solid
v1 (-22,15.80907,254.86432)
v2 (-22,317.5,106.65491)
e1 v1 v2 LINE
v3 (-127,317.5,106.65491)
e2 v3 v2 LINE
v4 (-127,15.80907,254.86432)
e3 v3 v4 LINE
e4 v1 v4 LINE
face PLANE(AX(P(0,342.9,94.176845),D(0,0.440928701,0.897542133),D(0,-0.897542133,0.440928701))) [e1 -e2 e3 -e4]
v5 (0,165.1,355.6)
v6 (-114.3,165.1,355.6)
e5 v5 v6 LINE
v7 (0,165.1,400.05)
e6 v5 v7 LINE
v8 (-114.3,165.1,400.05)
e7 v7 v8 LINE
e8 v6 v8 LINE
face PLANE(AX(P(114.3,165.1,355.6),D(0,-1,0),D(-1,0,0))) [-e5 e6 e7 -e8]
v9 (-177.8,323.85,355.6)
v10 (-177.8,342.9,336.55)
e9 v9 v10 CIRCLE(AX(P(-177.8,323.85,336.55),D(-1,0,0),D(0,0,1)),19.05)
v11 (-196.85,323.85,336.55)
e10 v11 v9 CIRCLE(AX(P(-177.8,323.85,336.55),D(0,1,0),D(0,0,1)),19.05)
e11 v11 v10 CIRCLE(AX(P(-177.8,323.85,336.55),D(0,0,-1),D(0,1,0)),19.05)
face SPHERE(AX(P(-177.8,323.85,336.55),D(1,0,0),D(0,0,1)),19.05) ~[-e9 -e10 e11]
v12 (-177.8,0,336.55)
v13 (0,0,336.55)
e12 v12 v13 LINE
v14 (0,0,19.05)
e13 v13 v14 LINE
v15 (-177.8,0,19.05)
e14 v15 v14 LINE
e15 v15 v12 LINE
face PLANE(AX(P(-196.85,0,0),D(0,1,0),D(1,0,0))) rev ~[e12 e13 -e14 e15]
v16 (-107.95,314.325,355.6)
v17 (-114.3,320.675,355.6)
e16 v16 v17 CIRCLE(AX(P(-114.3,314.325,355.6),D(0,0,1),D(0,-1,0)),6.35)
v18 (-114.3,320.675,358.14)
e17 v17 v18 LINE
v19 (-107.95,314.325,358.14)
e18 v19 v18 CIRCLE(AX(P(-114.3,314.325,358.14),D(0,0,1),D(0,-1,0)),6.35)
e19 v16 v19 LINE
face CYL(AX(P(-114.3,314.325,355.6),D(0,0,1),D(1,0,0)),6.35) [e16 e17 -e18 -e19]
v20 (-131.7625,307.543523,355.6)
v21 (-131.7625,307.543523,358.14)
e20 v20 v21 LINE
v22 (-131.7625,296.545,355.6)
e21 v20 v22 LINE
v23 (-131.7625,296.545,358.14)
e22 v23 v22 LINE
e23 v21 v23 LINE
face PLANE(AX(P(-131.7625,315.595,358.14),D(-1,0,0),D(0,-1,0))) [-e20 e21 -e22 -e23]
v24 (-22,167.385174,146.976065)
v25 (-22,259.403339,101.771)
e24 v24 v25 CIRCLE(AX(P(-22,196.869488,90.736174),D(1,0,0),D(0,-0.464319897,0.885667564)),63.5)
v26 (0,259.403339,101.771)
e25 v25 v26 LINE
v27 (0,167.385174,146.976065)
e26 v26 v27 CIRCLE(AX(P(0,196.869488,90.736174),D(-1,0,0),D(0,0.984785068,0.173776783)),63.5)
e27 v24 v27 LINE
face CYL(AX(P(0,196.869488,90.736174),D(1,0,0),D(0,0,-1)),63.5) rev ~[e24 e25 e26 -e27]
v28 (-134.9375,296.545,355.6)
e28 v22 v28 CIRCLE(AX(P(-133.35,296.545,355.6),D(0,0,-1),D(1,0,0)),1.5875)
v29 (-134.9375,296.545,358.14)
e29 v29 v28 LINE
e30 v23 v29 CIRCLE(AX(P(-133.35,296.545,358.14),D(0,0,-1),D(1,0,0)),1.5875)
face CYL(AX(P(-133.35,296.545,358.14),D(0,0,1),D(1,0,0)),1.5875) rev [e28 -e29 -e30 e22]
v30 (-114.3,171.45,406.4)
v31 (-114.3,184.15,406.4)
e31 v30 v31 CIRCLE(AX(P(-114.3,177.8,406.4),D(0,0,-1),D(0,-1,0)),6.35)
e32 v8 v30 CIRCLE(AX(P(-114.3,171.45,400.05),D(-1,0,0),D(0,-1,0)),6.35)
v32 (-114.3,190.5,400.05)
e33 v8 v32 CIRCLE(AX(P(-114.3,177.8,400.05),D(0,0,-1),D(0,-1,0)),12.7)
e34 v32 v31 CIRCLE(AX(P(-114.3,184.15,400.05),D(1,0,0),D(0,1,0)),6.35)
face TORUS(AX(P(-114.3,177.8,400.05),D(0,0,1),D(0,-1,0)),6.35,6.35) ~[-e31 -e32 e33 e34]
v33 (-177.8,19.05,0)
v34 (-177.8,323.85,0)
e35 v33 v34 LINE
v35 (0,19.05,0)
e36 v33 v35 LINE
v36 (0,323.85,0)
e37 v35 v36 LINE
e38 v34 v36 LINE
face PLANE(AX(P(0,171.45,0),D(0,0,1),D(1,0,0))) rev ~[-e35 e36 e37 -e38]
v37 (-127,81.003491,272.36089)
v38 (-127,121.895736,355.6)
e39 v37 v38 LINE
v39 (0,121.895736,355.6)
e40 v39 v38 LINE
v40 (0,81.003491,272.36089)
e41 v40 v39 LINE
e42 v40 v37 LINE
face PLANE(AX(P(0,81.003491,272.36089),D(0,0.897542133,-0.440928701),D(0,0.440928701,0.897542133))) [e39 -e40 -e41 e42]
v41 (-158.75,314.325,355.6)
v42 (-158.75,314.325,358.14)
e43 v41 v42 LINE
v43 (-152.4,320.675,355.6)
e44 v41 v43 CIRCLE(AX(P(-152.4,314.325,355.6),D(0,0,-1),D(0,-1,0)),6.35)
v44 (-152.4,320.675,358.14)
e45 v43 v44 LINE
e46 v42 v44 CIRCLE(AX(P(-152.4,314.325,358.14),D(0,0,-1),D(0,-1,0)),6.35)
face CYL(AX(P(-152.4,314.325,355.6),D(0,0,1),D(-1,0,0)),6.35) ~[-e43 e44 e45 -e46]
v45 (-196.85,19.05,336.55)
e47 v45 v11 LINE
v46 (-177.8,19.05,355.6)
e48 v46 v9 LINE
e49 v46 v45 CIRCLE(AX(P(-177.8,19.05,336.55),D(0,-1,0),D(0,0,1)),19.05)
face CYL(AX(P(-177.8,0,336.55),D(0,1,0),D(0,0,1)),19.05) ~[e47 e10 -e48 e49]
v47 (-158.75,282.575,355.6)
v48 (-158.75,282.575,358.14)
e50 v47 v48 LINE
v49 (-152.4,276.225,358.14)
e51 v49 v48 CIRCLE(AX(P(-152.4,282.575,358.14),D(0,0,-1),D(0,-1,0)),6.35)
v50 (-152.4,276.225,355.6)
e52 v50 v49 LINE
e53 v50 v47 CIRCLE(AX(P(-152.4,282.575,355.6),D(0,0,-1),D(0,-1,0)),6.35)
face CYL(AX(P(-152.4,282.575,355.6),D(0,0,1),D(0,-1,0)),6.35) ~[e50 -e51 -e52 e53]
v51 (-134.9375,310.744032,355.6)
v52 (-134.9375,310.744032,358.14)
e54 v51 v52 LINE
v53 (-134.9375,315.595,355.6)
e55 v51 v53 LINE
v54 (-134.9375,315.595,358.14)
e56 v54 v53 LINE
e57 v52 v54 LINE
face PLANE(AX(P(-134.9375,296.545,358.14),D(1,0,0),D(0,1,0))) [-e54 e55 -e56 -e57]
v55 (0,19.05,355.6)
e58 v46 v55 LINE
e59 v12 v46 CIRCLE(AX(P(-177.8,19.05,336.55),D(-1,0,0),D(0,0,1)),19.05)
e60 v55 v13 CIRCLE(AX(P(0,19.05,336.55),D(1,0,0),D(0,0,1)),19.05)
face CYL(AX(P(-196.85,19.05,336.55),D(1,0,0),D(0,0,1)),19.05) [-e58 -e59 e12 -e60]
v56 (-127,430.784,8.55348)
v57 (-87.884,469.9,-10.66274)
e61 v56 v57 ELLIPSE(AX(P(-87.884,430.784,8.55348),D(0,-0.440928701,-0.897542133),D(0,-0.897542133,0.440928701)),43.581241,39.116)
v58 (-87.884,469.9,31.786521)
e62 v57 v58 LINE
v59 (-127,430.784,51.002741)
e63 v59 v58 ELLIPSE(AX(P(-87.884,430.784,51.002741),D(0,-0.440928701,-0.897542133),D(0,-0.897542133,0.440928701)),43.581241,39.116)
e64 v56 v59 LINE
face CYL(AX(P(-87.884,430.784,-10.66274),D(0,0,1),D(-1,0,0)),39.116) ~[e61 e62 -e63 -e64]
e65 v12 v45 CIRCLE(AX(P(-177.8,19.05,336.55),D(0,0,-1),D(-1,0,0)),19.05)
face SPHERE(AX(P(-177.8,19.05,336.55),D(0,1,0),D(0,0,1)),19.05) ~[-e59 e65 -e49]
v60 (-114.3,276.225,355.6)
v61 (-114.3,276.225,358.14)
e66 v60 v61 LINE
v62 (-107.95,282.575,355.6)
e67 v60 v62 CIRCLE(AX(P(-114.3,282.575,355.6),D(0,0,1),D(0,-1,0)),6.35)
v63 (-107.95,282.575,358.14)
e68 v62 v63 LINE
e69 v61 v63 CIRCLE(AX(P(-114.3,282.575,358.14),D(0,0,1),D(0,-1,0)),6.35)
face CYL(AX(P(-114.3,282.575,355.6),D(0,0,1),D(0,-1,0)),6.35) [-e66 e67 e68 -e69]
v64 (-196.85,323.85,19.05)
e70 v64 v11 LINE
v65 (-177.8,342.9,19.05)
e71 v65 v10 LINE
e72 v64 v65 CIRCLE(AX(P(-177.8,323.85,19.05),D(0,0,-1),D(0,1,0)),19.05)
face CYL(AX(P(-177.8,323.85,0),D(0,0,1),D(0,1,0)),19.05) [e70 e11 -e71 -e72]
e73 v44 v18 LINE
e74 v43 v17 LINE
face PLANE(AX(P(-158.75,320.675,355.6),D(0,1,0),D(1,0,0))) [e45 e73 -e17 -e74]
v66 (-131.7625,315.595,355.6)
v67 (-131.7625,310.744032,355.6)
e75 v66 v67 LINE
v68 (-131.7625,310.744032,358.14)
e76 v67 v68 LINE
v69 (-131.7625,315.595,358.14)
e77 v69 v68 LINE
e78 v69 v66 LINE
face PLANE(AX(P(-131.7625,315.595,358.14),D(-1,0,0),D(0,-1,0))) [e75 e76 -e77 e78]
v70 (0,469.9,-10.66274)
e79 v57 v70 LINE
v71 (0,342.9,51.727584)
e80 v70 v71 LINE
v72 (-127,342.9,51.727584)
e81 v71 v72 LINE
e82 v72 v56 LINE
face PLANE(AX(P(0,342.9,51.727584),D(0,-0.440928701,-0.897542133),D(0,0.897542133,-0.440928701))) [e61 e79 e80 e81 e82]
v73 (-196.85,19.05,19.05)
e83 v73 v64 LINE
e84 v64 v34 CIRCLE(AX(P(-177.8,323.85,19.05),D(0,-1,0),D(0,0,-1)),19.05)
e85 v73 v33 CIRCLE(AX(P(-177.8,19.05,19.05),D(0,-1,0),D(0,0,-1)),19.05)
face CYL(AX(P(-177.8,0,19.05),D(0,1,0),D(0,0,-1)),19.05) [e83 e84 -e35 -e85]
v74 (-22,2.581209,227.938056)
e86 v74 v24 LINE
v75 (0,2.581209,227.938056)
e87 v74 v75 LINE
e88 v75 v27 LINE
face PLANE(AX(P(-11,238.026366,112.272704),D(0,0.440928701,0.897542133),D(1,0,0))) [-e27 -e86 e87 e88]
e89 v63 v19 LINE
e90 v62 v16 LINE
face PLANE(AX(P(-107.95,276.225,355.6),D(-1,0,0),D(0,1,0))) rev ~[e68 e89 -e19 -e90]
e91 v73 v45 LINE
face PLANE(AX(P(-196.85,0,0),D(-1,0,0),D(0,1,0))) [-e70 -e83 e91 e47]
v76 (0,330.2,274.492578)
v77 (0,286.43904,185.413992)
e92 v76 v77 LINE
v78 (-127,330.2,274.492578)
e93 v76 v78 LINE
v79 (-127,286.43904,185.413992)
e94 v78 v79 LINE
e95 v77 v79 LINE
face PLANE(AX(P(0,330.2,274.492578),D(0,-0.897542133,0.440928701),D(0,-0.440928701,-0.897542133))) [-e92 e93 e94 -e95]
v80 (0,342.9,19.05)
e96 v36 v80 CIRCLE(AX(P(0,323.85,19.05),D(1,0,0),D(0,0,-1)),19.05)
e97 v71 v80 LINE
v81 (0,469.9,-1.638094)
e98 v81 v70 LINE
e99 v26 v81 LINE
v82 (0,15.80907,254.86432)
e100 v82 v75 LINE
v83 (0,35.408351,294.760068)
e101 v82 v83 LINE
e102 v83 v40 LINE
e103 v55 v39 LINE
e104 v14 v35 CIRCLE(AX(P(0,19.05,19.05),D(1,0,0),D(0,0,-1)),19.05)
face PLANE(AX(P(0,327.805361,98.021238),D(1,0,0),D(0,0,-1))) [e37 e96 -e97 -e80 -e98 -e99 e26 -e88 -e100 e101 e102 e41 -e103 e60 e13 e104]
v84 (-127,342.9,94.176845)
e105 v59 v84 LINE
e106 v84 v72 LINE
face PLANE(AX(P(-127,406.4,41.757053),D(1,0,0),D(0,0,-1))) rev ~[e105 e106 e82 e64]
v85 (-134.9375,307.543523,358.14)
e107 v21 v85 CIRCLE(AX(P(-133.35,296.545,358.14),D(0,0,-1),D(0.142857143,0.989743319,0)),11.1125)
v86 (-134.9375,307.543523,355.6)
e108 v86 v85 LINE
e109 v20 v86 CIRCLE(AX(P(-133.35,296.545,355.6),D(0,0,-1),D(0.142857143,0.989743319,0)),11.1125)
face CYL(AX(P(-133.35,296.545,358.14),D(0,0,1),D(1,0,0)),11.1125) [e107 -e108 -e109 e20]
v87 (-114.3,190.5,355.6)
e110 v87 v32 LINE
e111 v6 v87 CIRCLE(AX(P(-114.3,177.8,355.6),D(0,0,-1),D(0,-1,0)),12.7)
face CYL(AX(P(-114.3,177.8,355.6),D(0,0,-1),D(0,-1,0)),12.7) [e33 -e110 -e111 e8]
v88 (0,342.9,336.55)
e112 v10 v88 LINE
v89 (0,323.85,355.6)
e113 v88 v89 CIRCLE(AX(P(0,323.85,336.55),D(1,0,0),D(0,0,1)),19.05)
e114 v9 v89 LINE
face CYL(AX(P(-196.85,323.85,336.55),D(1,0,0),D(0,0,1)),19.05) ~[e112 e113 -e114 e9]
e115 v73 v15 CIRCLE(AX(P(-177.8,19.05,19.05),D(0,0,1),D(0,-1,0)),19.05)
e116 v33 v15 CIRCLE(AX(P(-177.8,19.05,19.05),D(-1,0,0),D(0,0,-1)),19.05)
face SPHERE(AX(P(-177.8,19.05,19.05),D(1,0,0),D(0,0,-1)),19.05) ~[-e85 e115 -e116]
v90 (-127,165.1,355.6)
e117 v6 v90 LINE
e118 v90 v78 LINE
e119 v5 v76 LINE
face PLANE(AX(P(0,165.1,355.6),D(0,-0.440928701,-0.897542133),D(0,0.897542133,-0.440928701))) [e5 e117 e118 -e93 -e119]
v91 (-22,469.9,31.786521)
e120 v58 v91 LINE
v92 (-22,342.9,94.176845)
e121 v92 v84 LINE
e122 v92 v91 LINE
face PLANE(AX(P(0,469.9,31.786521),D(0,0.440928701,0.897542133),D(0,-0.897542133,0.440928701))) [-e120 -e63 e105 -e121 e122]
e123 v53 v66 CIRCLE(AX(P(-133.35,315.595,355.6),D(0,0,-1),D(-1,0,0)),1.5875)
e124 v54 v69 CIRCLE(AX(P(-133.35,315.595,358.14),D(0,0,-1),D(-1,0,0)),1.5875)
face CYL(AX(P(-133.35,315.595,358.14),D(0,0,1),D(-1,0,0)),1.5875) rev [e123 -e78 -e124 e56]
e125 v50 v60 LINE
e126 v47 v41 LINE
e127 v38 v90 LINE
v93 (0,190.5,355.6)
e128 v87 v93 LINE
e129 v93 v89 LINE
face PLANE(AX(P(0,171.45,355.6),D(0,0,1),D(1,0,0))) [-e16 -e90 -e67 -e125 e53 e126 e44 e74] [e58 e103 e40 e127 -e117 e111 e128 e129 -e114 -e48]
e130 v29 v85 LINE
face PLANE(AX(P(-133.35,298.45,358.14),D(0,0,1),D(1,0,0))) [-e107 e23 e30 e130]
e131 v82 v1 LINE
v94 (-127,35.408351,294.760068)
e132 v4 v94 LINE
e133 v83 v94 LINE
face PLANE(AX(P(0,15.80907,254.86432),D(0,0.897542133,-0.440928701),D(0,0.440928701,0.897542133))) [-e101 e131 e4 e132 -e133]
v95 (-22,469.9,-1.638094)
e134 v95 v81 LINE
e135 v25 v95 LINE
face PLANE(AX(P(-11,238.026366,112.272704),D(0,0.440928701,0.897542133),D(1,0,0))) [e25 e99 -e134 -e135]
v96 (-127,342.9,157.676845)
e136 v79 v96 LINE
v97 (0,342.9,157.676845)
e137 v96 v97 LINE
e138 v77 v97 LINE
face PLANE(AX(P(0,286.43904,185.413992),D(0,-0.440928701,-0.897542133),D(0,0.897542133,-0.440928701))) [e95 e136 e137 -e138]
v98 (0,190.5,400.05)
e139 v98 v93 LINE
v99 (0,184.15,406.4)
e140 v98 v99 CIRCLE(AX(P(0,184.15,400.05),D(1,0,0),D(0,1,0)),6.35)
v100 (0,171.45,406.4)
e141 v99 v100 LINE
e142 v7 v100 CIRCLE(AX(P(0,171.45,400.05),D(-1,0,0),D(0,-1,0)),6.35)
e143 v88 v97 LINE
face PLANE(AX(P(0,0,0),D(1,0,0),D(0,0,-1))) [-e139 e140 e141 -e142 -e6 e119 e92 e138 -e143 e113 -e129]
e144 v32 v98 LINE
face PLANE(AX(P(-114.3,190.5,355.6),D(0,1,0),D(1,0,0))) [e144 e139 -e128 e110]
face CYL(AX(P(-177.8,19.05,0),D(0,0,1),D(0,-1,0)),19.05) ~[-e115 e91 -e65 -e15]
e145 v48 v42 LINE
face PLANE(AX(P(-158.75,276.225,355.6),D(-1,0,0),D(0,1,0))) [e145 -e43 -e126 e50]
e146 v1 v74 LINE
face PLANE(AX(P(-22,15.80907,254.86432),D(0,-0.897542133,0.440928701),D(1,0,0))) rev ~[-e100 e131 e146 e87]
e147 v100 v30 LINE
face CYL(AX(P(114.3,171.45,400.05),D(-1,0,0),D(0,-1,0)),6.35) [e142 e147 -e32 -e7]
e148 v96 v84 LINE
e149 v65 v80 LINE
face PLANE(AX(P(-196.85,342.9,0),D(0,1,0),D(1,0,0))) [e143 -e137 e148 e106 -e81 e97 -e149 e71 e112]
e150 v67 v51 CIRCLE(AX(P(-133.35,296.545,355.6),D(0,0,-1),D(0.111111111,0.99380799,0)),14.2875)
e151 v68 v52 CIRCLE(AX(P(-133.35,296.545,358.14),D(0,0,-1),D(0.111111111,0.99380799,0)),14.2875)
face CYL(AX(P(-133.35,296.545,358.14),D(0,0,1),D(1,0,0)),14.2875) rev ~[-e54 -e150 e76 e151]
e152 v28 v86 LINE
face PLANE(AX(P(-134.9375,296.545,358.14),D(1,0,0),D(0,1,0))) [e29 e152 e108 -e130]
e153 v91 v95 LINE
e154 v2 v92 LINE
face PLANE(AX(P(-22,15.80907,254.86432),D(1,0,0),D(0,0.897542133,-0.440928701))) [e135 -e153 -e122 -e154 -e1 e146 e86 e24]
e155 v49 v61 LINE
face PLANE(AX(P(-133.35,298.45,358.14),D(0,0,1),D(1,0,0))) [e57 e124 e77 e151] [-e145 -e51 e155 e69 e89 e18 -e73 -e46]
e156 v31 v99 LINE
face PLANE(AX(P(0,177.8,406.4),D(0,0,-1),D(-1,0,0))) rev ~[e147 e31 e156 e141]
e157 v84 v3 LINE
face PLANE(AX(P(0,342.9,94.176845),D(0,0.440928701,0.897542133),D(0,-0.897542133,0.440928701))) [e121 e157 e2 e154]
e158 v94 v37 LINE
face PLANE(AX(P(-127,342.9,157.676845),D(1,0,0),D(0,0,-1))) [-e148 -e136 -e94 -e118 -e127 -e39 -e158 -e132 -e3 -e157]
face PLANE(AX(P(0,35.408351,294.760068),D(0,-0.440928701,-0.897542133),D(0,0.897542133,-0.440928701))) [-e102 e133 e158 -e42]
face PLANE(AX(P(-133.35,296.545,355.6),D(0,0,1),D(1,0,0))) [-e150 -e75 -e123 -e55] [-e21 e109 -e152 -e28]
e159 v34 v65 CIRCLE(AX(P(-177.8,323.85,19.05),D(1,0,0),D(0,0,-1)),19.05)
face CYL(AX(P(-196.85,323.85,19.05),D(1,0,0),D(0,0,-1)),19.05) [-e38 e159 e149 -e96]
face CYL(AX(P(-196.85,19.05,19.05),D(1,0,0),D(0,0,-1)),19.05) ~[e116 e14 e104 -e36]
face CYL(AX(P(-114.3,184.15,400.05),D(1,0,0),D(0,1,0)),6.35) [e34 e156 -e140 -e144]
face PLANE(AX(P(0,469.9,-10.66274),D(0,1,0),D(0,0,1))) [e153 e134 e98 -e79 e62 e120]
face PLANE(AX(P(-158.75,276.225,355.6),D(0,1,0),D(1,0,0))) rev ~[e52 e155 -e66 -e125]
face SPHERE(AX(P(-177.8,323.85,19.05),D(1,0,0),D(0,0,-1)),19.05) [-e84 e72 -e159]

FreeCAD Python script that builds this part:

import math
import FreeCAD as App
import Part
import Sketcher
Q = App.Units.Quantity


def edges_at(feature, points):
    """Names of the edges that pass closest to the given points."""
    edges = feature.Shape.Edges
    near = lambda p: min(range(len(edges)), key=lambda i: edges[i].distToShape(Part.Vertex(*p))[0])
    return sorted({f"Edge{near(p) + 1}" for p in points})

doc = App.newDocument("Part")
body = doc.addObject("PartDesign::Body", "Body")

# Sketch on XY plane
sketch1 = body.newObject("Sketcher::SketchObject", "Sketch")
sketch1.AttachmentSupport = (doc.getObject("XY_Plane"), [""])
sketch1.MapMode = "FlatFace"
sketch1.addGeometry(Part.LineSegment(App.Vector(-196.85, 342.9, 0), App.Vector(-196.85, 0, 0)), False)
sketch1.addGeometry(Part.LineSegment(App.Vector(-196.85, 0, 0), App.Vector(196.85, 0, 0)), False)
sketch1.addGeometry(Part.LineSegment(App.Vector(196.85, 0, 0), App.Vector(196.85, 342.9, 0)), False)
sketch1.addGeometry(Part.LineSegment(App.Vector(196.85, 342.9, 0), App.Vector(-196.85, 342.9, 0)), False)
sketch1.addConstraint(Sketcher.Constraint("Coincident", 0, 2, 1, 1))
sketch1.addConstraint(Sketcher.Constraint("Coincident", 1, 2, 2, 1))
sketch1.addConstraint(Sketcher.Constraint("Coincident", 2, 2, 3, 1))
sketch1.addConstraint(Sketcher.Constraint("Coincident", 3, 2, 0, 1))
sketch1.addConstraint(Sketcher.Constraint("Vertical", 0))
sketch1.addConstraint(Sketcher.Constraint("Horizontal", 1))
sketch1.addConstraint(Sketcher.Constraint("Vertical", 2))
sketch1.addConstraint(Sketcher.Constraint("Horizontal", 3))
sketch1.addConstraint(Sketcher.Constraint("Symmetric", 0, 2, 1, 2, -1, 1))
sketch1.addConstraint(Sketcher.Constraint("DistanceX", 1, 1, 1, 2, Q("15.5 in")))
sketch1.addConstraint(Sketcher.Constraint("DistanceY", 0, 2, 0, 1, Q("13.5 in")))
pad1 = body.newObject("PartDesign::Pad", "Pad")
pad1.Profile = sketch1
pad1.Length = Q("14 in")

# Sketch on XY plane
sketch2 = body.newObject("Sketcher::SketchObject", "Sketch001")
sketch2.AttachmentSupport = (doc.getObject("XY_Plane"), [""])
sketch2.MapMode = "FlatFace"
sketch2.AttachmentOffset = App.Placement(App.Vector(0, 0, 14 * 25.4), App.Rotation())
sketch2.addGeometry(Part.LineSegment(App.Vector(-158.75, 320.675, 0), App.Vector(-158.75, 276.225, 0)), False)
sketch2.addGeometry(Part.LineSegment(App.Vector(-158.75, 276.225, 0), App.Vector(-107.95, 276.225, 0)), False)
sketch2.addGeometry(Part.LineSegment(App.Vector(-107.95, 276.225, 0), App.Vector(-107.95, 320.675, 0)), False)
sketch2.addGeometry(Part.LineSegment(App.Vector(-107.95, 320.675, 0), App.Vector(-158.75, 320.675, 0)), False)
sketch2.addConstraint(Sketcher.Constraint("Coincident", 0, 2, 1, 1))
sketch2.addConstraint(Sketcher.Constraint("Coincident", 1, 2, 2, 1))
sketch2.addConstraint(Sketcher.Constraint("Coincident", 2, 2, 3, 1))
sketch2.addConstraint(Sketcher.Constraint("Coincident", 3, 2, 0, 1))
sketch2.addConstraint(Sketcher.Constraint("Vertical", 0))
sketch2.addConstraint(Sketcher.Constraint("Horizontal", 1))
sketch2.addConstraint(Sketcher.Constraint("Vertical", 2))
sketch2.addConstraint(Sketcher.Constraint("Horizontal", 3))
sketch2.addConstraint(Sketcher.Constraint("DistanceX", 1, 1, 1, 2, Q("2 in")))
sketch2.addConstraint(Sketcher.Constraint("DistanceY", 0, 2, 0, 1, Q("1.75 in")))
sketch2.addConstraint(Sketcher.Constraint("DistanceX", 0, 2, -1, 1, Q("6.25 in")))
sketch2.addConstraint(Sketcher.Constraint("DistanceY", -1, 1, 0, 2, Q("10.875 in")))
pad2 = body.newObject("PartDesign::Pad", "Pad001")
pad2.Profile = sketch2
pad2.Length = Q("0.1 in")

# Sketch on XY plane
sketch3 = body.newObject("Sketcher::SketchObject", "Sketch002")
sketch3.AttachmentSupport = (doc.getObject("XY_Plane"), [""])
sketch3.MapMode = "FlatFace"
sketch3.AttachmentOffset = App.Placement(App.Vector(0, 0, 14 * 25.4), App.Rotation())
sketch3.addGeometry(Part.LineSegment(App.Vector(165.1, 307.975, 0), App.Vector(88.9, 307.975, 0)), False)
sketch3.addGeometry(Part.ArcOfCircle(Part.Circle(App.Vector(88.9, 298.45, 0), App.Vector(0, 0, 1), 9.525), math.radians(90), math.radians(270)), False)
sketch3.addGeometry(Part.LineSegment(App.Vector(88.9, 288.925, 0), App.Vector(165.1, 288.925, 0)), False)
sketch3.addGeometry(Part.ArcOfCircle(Part.Circle(App.Vector(165.1, 298.45, 0), App.Vector(0, 0, 1), 9.525), math.radians(-90), math.radians(90)), False)
sketch3.addConstraint(Sketcher.Constraint("Tangent", 0, 2, 1, 1))
sketch3.addConstraint(Sketcher.Constraint("Tangent", 1, 2, 2, 1))
sketch3.addConstraint(Sketcher.Constraint("Tangent", 2, 2, 3, 1))
sketch3.addConstraint(Sketcher.Constraint("Tangent", 3, 2, 0, 1))
sketch3.addConstraint(Sketcher.Constraint("Horizontal", 0))
sketch3.addConstraint(Sketcher.Constraint("Horizontal", 2))
sketch3.addConstraint(Sketcher.Constraint("DistanceX", 0, 2, 0, 1, Q("3 in")))
sketch3.addConstraint(Sketcher.Constraint("Radius", 1, Q("0.375 in")))
sketch3.addConstraint(Sketcher.Constraint("DistanceX", -1, 1, 1, 3, Q("3.5 in")))
sketch3.addConstraint(Sketcher.Constraint("DistanceY", -1, 1, 1, 3, Q("11.75 in")))
pad3 = body.newObject("PartDesign::Pad", "Pad002")
pad3.Profile = sketch3
pad3.Length = Q("0.1 in")

# Sketch on XY plane
sketch4 = body.newObject("Sketcher::SketchObject", "Sketch003")
sketch4.AttachmentSupport = (doc.getObject("XY_Plane"), [""])
sketch4.MapMode = "FlatFace"
sketch4.AttachmentOffset = App.Placement(App.Vector(0, 0, 14.1 * 25.4), App.Rotation())
sketch4.addGeometry(Part.Circle(App.Vector(92.075, 298.45, 0), App.Vector(0, 0, 1), 3.81), False)
sketch4.addGeometry(Part.Circle(App.Vector(108.286468, 298.45, 0), App.Vector(0, 0, 1), 3.81), False)
sketch4.addGeometry(Part.Circle(App.Vector(124.497935, 298.45, 0), App.Vector(0, 0, 1), 3.81), False)
sketch4.addConstraint(Sketcher.Constraint("Equal", 0, 1))
sketch4.addConstraint(Sketcher.Constraint("Equal", 1, 2))
sketch4.addConstraint(Sketcher.Constraint("Horizontal", 0, 3, 1, 3))
sketch4.addConstraint(Sketcher.Constraint("Horizontal", 1, 3, 2, 3))
sketch4.addConstraint(Sketcher.Constraint("Diameter", 0, Q("0.3 in")))
sketch4.addConstraint(Sketcher.Constraint("DistanceY", -1, 1, 0, 3, Q("11.75 in")))
sketch4.addConstraint(Sketcher.Constraint("DistanceX", -1, 1, 0, 3, Q("3.625 in")))
sketch4.addConstraint(Sketcher.Constraint("DistanceX", -1, 1, 1, 3, Q("108.286468 mm")))
sketch4.addConstraint(Sketcher.Constraint("DistanceX", -1, 1, 2, 3, Q("124.497935 mm")))
pocket1 = body.newObject("PartDesign::Pocket", "Pocket")
pocket1.Profile = sketch4
pocket1.Length = Q("0.1 in")

# Sketch on XY plane
sketch5 = body.newObject("Sketcher::SketchObject", "Sketch004")
sketch5.AttachmentSupport = (doc.getObject("XY_Plane"), [""])
sketch5.MapMode = "FlatFace"
sketch5.AttachmentOffset = App.Placement(App.Vector(0, 0, 14 * 25.4), App.Rotation())
sketch5.addGeometry(Part.LineSegment(App.Vector(114.3, 190.5, 0), App.Vector(-114.3, 190.5, 0)), False)
sketch5.addGeometry(Part.ArcOfCircle(Part.Circle(App.Vector(-114.3, 177.8, 0), App.Vector(0, 0, 1), 12.7), math.radians(90), math.radians(270)), False)
sketch5.addGeometry(Part.LineSegment(App.Vector(-114.3, 165.1, 0), App.Vector(114.3, 165.1, 0)), False)
sketch5.addGeometry(Part.ArcOfCircle(Part.Circle(App.Vector(114.3, 177.8, 0), App.Vector(0, 0, 1), 12.7), math.radians(-90), math.radians(90)), False)
sketch5.addConstraint(Sketcher.Constraint("Tangent", 0, 2, 1, 1))
sketch5.addConstraint(Sketcher.Constraint("Tangent", 1, 2, 2, 1))
sketch5.addConstraint(Sketcher.Constraint("Tangent", 2, 2, 3, 1))
sketch5.addConstraint(Sketcher.Constraint("Tangent", 3, 2, 0, 1))
sketch5.addConstraint(Sketcher.Constraint("Horizontal", 0))
sketch5.addConstraint(Sketcher.Constraint("Horizontal", 2))
sketch5.addConstraint(Sketcher.Constraint("Radius", 1, Q("0.5 in")))
sketch5.addConstraint(Sketcher.Constraint("DistanceX", 0, 2, 0, 1, Q("9 in")))
sketch5.addConstraint(Sketcher.Constraint("DistanceY", -1, 1, 1, 3, Q("7 in")))
sketch5.addConstraint(Sketcher.Constraint("DistanceX", 1, 3, -1, 1, Q("4.5 in")))
pad4 = body.newObject("PartDesign::Pad", "Pad003")
pad4.Profile = sketch5
pad4.Length = Q("2 in")
doc.recompute()

fillet = body.newObject("PartDesign::Fillet", "Fillet")
fillet.Base = (pad4, edges_at(pad4, [
    (-127, 177.8, 406.4),
    (0, 165.1, 406.4),
    (127, 177.8, 406.4),
    (0, 190.5, 406.4),
]))
fillet.Radius = Q("0.25 in")
doc.recompute()

fillet2 = body.newObject("PartDesign::Fillet", "Fillet001")
fillet2.Base = (fillet, edges_at(fillet, [
    (-107.95, 276.225, 356.87),
    (-107.95, 320.675, 356.87),
    (-158.75, 320.675, 356.87),
    (-158.75, 276.225, 356.87),
]))
fillet2.Radius = Q("0.25 in")

# Sketch on XY plane
sketch6 = body.newObject("Sketcher::SketchObject", "Sketch005")
sketch6.AttachmentSupport = (doc.getObject("XY_Plane"), [""])
sketch6.MapMode = "FlatFace"
sketch6.AttachmentOffset = App.Placement(App.Vector(0, 0, 14.1 * 25.4), App.Rotation())
sketch6.addGeometry(Part.ArcOfCircle(Part.Circle(App.Vector(-133.35, 296.545, 0), App.Vector(0, 0, 1), 14.2875), math.radians(96.37937), math.radians(443.62063)), False)
sketch6.addGeometry(Part.LineSegment(App.Vector(-131.7625, 310.744032, 0), App.Vector(-131.7625, 315.595, 0)), False)
sketch6.addGeometry(Part.ArcOfCircle(Part.Circle(App.Vector(-133.35, 315.595, 0), App.Vector(0, 0, 1), 1.5875), math.radians(0), math.radians(180)), False)
sketch6.addGeometry(Part.LineSegment(App.Vector(-134.9375, 315.595, 0), App.Vector(-134.9375, 310.744032, 0)), False)
sketch6.addGeometry(Part.LineSegment(App.Vector(-134.9375, 307.543523, 0), App.Vector(-134.9375, 296.545, 0)), False)
sketch6.addGeometry(Part.ArcOfCircle(Part.Circle(App.Vector(-133.35, 296.545, 0), App.Vector(0, 0, 1), 1.5875), math.radians(180), math.radians(360)), False)
sketch6.addGeometry(Part.LineSegment(App.Vector(-131.7625, 296.545, 0), App.Vector(-131.7625, 307.543523, 0)), False)
sketch6.addGeometry(Part.ArcOfCircle(Part.Circle(App.Vector(-133.35, 296.545, 0), App.Vector(0, 0, 1), 11.1125), math.radians(98.213211), math.radians(441.786789)), False)
sketch6.addConstraint(Sketcher.Constraint("Coincident", 0, 2, 1, 1))
sketch6.addConstraint(Sketcher.Constraint("Tangent", 1, 2, 2, 1))
sketch6.addConstraint(Sketcher.Constraint("Tangent", 2, 2, 3, 1))
sketch6.addConstraint(Sketcher.Constraint("Coincident", 3, 2, 0, 1))
sketch6.addConstraint(Sketcher.Constraint("Tangent", 4, 2, 5, 1))
sketch6.addConstraint(Sketcher.Constraint("Tangent", 5, 2, 6, 1))
sketch6.addConstraint(Sketcher.Constraint("Coincident", 6, 2, 7, 2))
sketch6.addConstraint(Sketcher.Constraint("Coincident", 7, 1, 4, 1))
sketch6.addConstraint(Sketcher.Constraint("Vertical", 1))
sketch6.addConstraint(Sketcher.Constraint("Vertical", 3))
sketch6.addConstraint(Sketcher.Constraint("Vertical", 4))
sketch6.addConstraint(Sketcher.Constraint("Vertical", 6))
sketch6.addConstraint(Sketcher.Constraint("Coincident", 5, 3, 0, 3))
sketch6.addConstraint(Sketcher.Constraint("Coincident", 7, 3, 0, 3))
sketch6.addConstraint(Sketcher.Constraint("Equal", 2, 5))
sketch6.addConstraint(Sketcher.Constraint("Horizontal", 0, 2, 3, 2))
sketch6.addConstraint(Sketcher.Constraint("Radius", 0, Q("0.5625 in")))
sketch6.addConstraint(Sketcher.Constraint("Radius", 2, Q("0.0625 in")))
sketch6.addConstraint(Sketcher.Constraint("Radius", 7, Q("0.4375 in")))
sketch6.addConstraint(Sketcher.Constraint("DistanceX", 0, 3, -1, 1, Q("5.25 in")))
sketch6.addConstraint(Sketcher.Constraint("DistanceY", 0, 3, 2, 3, Q("0.75 in")))
sketch6.addConstraint(Sketcher.Constraint("DistanceY", -1, 1, 0, 3, Q("11.675 in")))
pocket2 = body.newObject("PartDesign::Pocket", "Pocket001")
pocket2.Profile = sketch6
pocket2.Length = Q("0.1 in")
doc.recompute()

fillet3 = body.newObject("PartDesign::Fillet", "Fillet002")
fillet3.Base = (pocket2, edges_at(pocket2, [
    (196.85, 171.45, 355.6),
    (0, 342.9, 355.6),
    (-196.85, 171.45, 355.6),
    (0, 342.9, 0),
    (196.85, 171.45, 0),
    (0, 0, 0),
    (-196.85, 171.45, 0),
    (0, 0, 355.6),
    (-196.85, 342.9, 177.8),
    (196.85, 342.9, 177.8),
    (196.85, 0, 177.8),
    (-196.85, 0, 177.8),
]))
fillet3.Radius = Q("0.75 in")

# Sketch on YZ plane
sketch7 = body.newObject("Sketcher::SketchObject", "Sketch006")
sketch7.AttachmentSupport = (doc.getObject("YZ_Plane"), [""])
sketch7.MapMode = "FlatFace"
sketch7.addGeometry(Part.LineSegment(App.Vector(342.9, 51.727584, 0), App.Vector(469.9, -10.66274, 0)), False)
sketch7.addGeometry(Part.LineSegment(App.Vector(469.9, -10.66274, 0), App.Vector(469.9, 31.786521, 0)), False)
sketch7.addGeometry(Part.LineSegment(App.Vector(469.9, 31.786521, 0), App.Vector(342.9, 94.176845, 0)), False)
sketch7.addGeometry(Part.LineSegment(App.Vector(342.9, 94.176845, 0), App.Vector(342.9, 51.727584, 0)), False)
sketch7.addConstraint(Sketcher.Constraint("Coincident", 0, 2, 1, 1))
sketch7.addConstraint(Sketcher.Constraint("Coincident", 1, 2, 2, 1))
sketch7.addConstraint(Sketcher.Constraint("Coincident", 2, 2, 3, 1))
sketch7.addConstraint(Sketcher.Constraint("Coincident", 3, 2, 0, 1))
sketch7.addConstraint(Sketcher.Constraint("Vertical", 1))
sketch7.addConstraint(Sketcher.Constraint("Vertical", 3))
sketch7.addConstraint(Sketcher.Constraint("Parallel", 0, 2))
sketch7.addConstraint(Sketcher.Constraint("DistanceX", 2, 2, 1, 2, Q("5 in")))
sketch7.addConstraint(Sketcher.Constraint("DistanceX", -1, 1, 0, 2, Q("18.5 in")))
sketch7.addConstraint(Sketcher.Constraint("DistanceY", 1, 1, 1, 2, Q("42.449261 mm")))
sketch7.addConstraint(Sketcher.Constraint("DistanceY", 0, 2, -1, 1, Q("10.66274 mm")))
sketch7.addConstraint(Sketcher.Constraint("Distance", 0, Q("141.497536 mm")))
pad5 = body.newObject("PartDesign::Pad", "Pad004")
pad5.Profile = sketch7
pad5.Length = Q("10 in")
pad5.Midplane = True
doc.recompute()

fillet4 = body.newObject("PartDesign::Fillet", "Fillet003")
fillet4.Base = (pad5, edges_at(pad5, [(-127, 469.9, 10.562), (127, 469.9, 10.562)]))
fillet4.Radius = Q("1.54 in")

# Sketch on XZ plane
sketch8 = body.newObject("Sketcher::SketchObject", "Sketch007")
sketch8.AttachmentSupport = (doc.getObject("XZ_Plane"), [""])
sketch8.MapMode = "FlatFace"
sketch8.AttachmentOffset = App.Placement(App.Vector(0, 0, -13.5 * 25.4), App.Rotation())
sketch8.addGeometry(Part.LineSegment(App.Vector(-127, 94.176845, 0), App.Vector(-127, 157.676845, 0)), False)
sketch8.addGeometry(Part.LineSegment(App.Vector(-127, 157.676845, 0), App.Vector(127, 157.676845, 0)), False)
sketch8.addGeometry(Part.LineSegment(App.Vector(127, 157.676845, 0), App.Vector(127, 94.176845, 0)), False)
sketch8.addGeometry(Part.LineSegment(App.Vector(127, 94.176845, 0), App.Vector(-127, 94.176845, 0)), False)
sketch8.addConstraint(Sketcher.Constraint("Coincident", 0, 2, 1, 1))
sketch8.addConstraint(Sketcher.Constraint("Coincident", 1, 2, 2, 1))
sketch8.addConstraint(Sketcher.Constraint("Coincident", 2, 2, 3, 1))
sketch8.addConstraint(Sketcher.Constraint("Coincident", 3, 2, 0, 1))
sketch8.addConstraint(Sketcher.Constraint("Vertical", 0))
sketch8.addConstraint(Sketcher.Constraint("Horizontal", 1))
sketch8.addConstraint(Sketcher.Constraint("Vertical", 2))
sketch8.addConstraint(Sketcher.Constraint("Horizontal", 3))
sketch8.addConstraint(Sketcher.Constraint("DistanceX", 1, 1, 1, 2, Q("10 in")))
sketch8.addConstraint(Sketcher.Constraint("DistanceY", 0, 1, 0, 2, Q("2.5 in")))
sketch8.addConstraint(Sketcher.Constraint("DistanceX", 0, 2, -1, 1, Q("5 in")))
sketch8.addConstraint(Sketcher.Constraint("DistanceY", -1, 1, 0, 2, Q("157.676845 mm")))
pocket3 = body.newObject("PartDesign::Pocket", "Pocket002")
pocket3.Profile = sketch8
pocket3.Length = Q("1 in")
pocket3.Reversed = True

# Sketch on YZ plane
sketch9 = body.newObject("Sketcher::SketchObject", "Sketch008")
sketch9.AttachmentSupport = (doc.getObject("YZ_Plane"), [""])
sketch9.MapMode = "FlatFace"
sketch9.addGeometry(Part.LineSegment(App.Vector(769.447058, 912.709369, 0), App.Vector(-1175.153028, 210.006015, 0)), False)
sketch9.addGeometry(Part.LineSegment(App.Vector(-1175.153028, 210.006015, 0), App.Vector(405.705971, -1122.715383, 0)), False)
sketch9.addGeometry(Part.LineSegment(App.Vector(405.705971, -1122.715383, 0), App.Vector(769.447058, 912.709369, 0)), False)
sketch9.addConstraint(Sketcher.Constraint("Coincident", 0, 2, 1, 1))
sketch9.addConstraint(Sketcher.Constraint("Coincident", 1, 2, 2, 1))
sketch9.addConstraint(Sketcher.Constraint("Coincident", 2, 2, 0, 1))
sketch9.addConstraint(Sketcher.Constraint("Equal", 0, 1))
sketch9.addConstraint(Sketcher.Constraint("Equal", 1, 2))
sketch9.addConstraint(Sketcher.Constraint("DistanceX", 0, 2, 1, 2, Q("1580.858999 mm")))
sketch9.addConstraint(Sketcher.Constraint("Distance", 0, Q("2067.670549 mm")))
sketch9.addConstraint(Sketcher.Constraint("DistanceX", 0, 2, -1, 1, Q("1175.153028 mm")))
sketch9.addConstraint(Sketcher.Constraint("DistanceY", -1, 1, 2, 2, Q("912.709369 mm")))
pocket4 = body.newObject("PartDesign::Pocket", "Pocket003")
pocket4.Profile = sketch9
pocket4.Type = "ThroughAll"
pocket4.Reversed = True

# Sketch on YZ plane
sketch10 = body.newObject("Sketcher::SketchObject", "Sketch009")
sketch10.AttachmentSupport = (doc.getObject("YZ_Plane"), [""])
sketch10.MapMode = "FlatFace"
sketch10.addGeometry(Part.LineSegment(App.Vector(15.80907, 254.86432, 0), App.Vector(342.9, 94.176845, 0)), False)
sketch10.addGeometry(Part.LineSegment(App.Vector(342.9, 94.176845, 0), App.Vector(342.9, 157.676845, 0)), False)
sketch10.addGeometry(Part.LineSegment(App.Vector(342.9, 157.676845, 0), App.Vector(286.43904, 185.413992, 0)), False)
sketch10.addGeometry(Part.LineSegment(App.Vector(286.43904, 185.413992, 0), App.Vector(330.2, 274.492578, 0)), False)
sketch10.addGeometry(Part.LineSegment(App.Vector(330.2, 274.492578, 0), App.Vector(165.1, 355.6, 0)), False)
sketch10.addGeometry(Part.LineSegment(App.Vector(165.1, 355.6, 0), App.Vector(121.895736, 355.6, 0)), False)
sketch10.addGeometry(Part.LineSegment(App.Vector(121.895736, 355.6, 0), App.Vector(81.003491, 272.36089, 0)), False)
sketch10.addGeometry(Part.LineSegment(App.Vector(81.003491, 272.36089, 0), App.Vector(35.408351, 294.760068, 0)), False)
sketch10.addGeometry(Part.LineSegment(App.Vector(35.408351, 294.760068, 0), App.Vector(15.80907, 254.86432, 0)), False)
sketch10.addConstraint(Sketcher.Constraint("Coincident", 0, 2, 1, 1))
sketch10.addConstraint(Sketcher.Constraint("Coincident", 1, 2, 2, 1))
sketch10.addConstraint(Sketcher.Constraint("Coincident", 2, 2, 3, 1))
sketch10.addConstraint(Sketcher.Constraint("Coincident", 3, 2, 4, 1))
sketch10.addConstraint(Sketcher.Constraint("Coincident", 4, 2, 5, 1))
sketch10.addConstraint(Sketcher.Constraint("Coincident", 5, 2, 6, 1))
sketch10.addConstraint(Sketcher.Constraint("Coincident", 6, 2, 7, 1))
sketch10.addConstraint(Sketcher.Constraint("Coincident", 7, 2, 8, 1))
sketch10.addConstraint(Sketcher.Constraint("Coincident", 8, 2, 0, 1))
sketch10.addConstraint(Sketcher.Constraint("Vertical", 1))
sketch10.addConstraint(Sketcher.Constraint("Horizontal", 5))
sketch10.addConstraint(Sketcher.Constraint("Parallel", 0, 2))
sketch10.addConstraint(Sketcher.Constraint("Perpendicular", 2, 3))
sketch10.addConstraint(Sketcher.Constraint("Perpendicular", 3, 4))
sketch10.addConstraint(Sketcher.Constraint("Perpendicular", 4, 6))
sketch10.addConstraint(Sketcher.Constraint("Perpendicular", 6, 7))
sketch10.addConstraint(Sketcher.Constraint("Perpendicular", 7, 8))
sketch10.addConstraint(Sketcher.Constraint("Distance", 7, Q("2 in")))
sketch10.addConstraint(Sketcher.Constraint("DistanceY", 1, 1, 1, 2, Q("2.5 in")))
sketch10.addConstraint(Sketcher.Constraint("DistanceX", -1, 1, 3, 2, Q("13 in")))
sketch10.addConstraint(Sketcher.Constraint("DistanceY", -1, 1, 4, 2, Q("14 in")))
sketch10.addConstraint(Sketcher.Constraint("DistanceX", 4, 2, 1, 2, Q("7 in")))
sketch10.addConstraint(Sketcher.Constraint("DistanceX", -1, 1, 0, 2, Q("13.5 in")))
sketch10.addConstraint(Sketcher.Constraint("Distance", 8, Q("1.75 in")))
sketch10.addConstraint(Sketcher.Constraint("Distance", 4, Q("7.2419999 in")))
sketch10.addConstraint(Sketcher.Constraint("DistanceY", 2, 2, 6, 2, Q("86.946898 mm")))
sketch10.addConstraint(Sketcher.Constraint("Distance", 0, Q("364.429611 mm")))
pocket5 = body.newObject("PartDesign::Pocket", "Pocket004")
pocket5.Profile = sketch10
pocket5.Length = Q("5 in")

# Sketch on YZ plane
sketch11 = body.newObject("Sketcher::SketchObject", "Sketch010")
sketch11.AttachmentSupport = (doc.getObject("YZ_Plane"), [""])
sketch11.MapMode = "FlatFace"
sketch11.addGeometry(Part.LineSegment(App.Vector(342.9, 94.176845, 0), App.Vector(317.5, 106.65491, 0)), False)
sketch11.addGeometry(Part.LineSegment(App.Vector(317.5, 106.65491, 0), App.Vector(317.5, 94.176845, 0)), False)
sketch11.addGeometry(Part.LineSegment(App.Vector(317.5, 94.176845, 0), App.Vector(342.9, 94.176845, 0)), False)
sketch11.addConstraint(Sketcher.Constraint("Coincident", 0, 2, 1, 1))
sketch11.addConstraint(Sketcher.Constraint("Coincident", 1, 2, 2, 1))
sketch11.addConstraint(Sketcher.Constraint("Coincident", 2, 2, 0, 1))
sketch11.addConstraint(Sketcher.Constraint("Vertical", 1))
sketch11.addConstraint(Sketcher.Constraint("Horizontal", 2))
sketch11.addConstraint(Sketcher.Constraint("DistanceX", 2, 1, 2, 2, Q("1 in")))
sketch11.addConstraint(Sketcher.Constraint("DistanceX", -1, 1, 0, 2, Q("12.5 in")))
sketch11.addConstraint(Sketcher.Constraint("DistanceY", 1, 2, 1, 1, Q("12.478065 mm")))
sketch11.addConstraint(Sketcher.Constraint("DistanceY", -1, 1, 0, 2, Q("106.65491 mm")))
pad6 = body.newObject("PartDesign::Pad", "Pad005")
pad6.Profile = sketch11
pad6.Length = Q("5 in")
pad6.Reversed = True

# Sketch on an angled plane
sketch12 = body.newObject("Sketcher::SketchObject", "Sketch011")
sketch12.Placement = App.Placement(App.Vector(0, 103.936656, 211.570551), App.Rotation(App.Vector(1, 0, 0), App.Vector(0, 0.897542133, -0.440928701), App.Vector(0, 0.440928701, 0.897542133), "ZXY"))
sketch12.addGeometry(Part.LineSegment(App.Vector(-22, 426.456556, 0), App.Vector(-22, -98.187687, 0)), False)
sketch12.addGeometry(Part.LineSegment(App.Vector(-22, -98.187687, 0), App.Vector(0, -98.187687, 0)), False)
sketch12.addGeometry(Part.LineSegment(App.Vector(0, -98.187687, 0), App.Vector(0, 426.456556, 0)), False)
sketch12.addGeometry(Part.LineSegment(App.Vector(0, 426.456556, 0), App.Vector(-22, 426.456556, 0)), False)
sketch12.addConstraint(Sketcher.Constraint("Coincident", 0, 2, 1, 1))
sketch12.addConstraint(Sketcher.Constraint("Coincident", 1, 2, 2, 1))
sketch12.addConstraint(Sketcher.Constraint("Coincident", 2, 2, 3, 1))
sketch12.addConstraint(Sketcher.Constraint("Coincident", 3, 2, 0, 1))
sketch12.addConstraint(Sketcher.Constraint("Vertical", 0))
sketch12.addConstraint(Sketcher.Constraint("Horizontal", 1))
sketch12.addConstraint(Sketcher.Constraint("Vertical", 2))
sketch12.addConstraint(Sketcher.Constraint("Horizontal", 3))
sketch12.addConstraint(Sketcher.Constraint("PointOnObject", 1, 2, -2))
sketch12.addConstraint(Sketcher.Constraint("DistanceX", 1, 1, 1, 2, Q("22 mm")))
sketch12.addConstraint(Sketcher.Constraint("DistanceY", 0, 2, 0, 1, Q("524.644244 mm")))
sketch12.addConstraint(Sketcher.Constraint("DistanceY", 0, 2, -1, 1, Q("98.187687 mm")))
pocket6 = body.newObject("PartDesign::Pocket", "Pocket005")
pocket6.Profile = sketch12
pocket6.Length = 30

# Sketch on YZ plane
sketch13 = body.newObject("Sketcher::SketchObject", "Sketch012")
sketch13.AttachmentSupport = (doc.getObject("YZ_Plane"), [""])
sketch13.MapMode = "FlatFace"
sketch13.addGeometry(Part.Circle(App.Vector(196.869488, 90.736174, 0), App.Vector(0, 0, 1), 63.5), False)
sketch13.addConstraint(Sketcher.Constraint("Diameter", 0, Q("5 in")))
sketch13.addConstraint(Sketcher.Constraint("DistanceX", -1, 1, 0, 3, Q("196.869488 mm")))
sketch13.addConstraint(Sketcher.Constraint("DistanceY", -1, 1, 0, 3, Q("90.736174 mm")))
pocket7 = body.newObject("PartDesign::Pocket", "Pocket006")
pocket7.Profile = sketch13
pocket7.Length = 22

doc.recompute()
